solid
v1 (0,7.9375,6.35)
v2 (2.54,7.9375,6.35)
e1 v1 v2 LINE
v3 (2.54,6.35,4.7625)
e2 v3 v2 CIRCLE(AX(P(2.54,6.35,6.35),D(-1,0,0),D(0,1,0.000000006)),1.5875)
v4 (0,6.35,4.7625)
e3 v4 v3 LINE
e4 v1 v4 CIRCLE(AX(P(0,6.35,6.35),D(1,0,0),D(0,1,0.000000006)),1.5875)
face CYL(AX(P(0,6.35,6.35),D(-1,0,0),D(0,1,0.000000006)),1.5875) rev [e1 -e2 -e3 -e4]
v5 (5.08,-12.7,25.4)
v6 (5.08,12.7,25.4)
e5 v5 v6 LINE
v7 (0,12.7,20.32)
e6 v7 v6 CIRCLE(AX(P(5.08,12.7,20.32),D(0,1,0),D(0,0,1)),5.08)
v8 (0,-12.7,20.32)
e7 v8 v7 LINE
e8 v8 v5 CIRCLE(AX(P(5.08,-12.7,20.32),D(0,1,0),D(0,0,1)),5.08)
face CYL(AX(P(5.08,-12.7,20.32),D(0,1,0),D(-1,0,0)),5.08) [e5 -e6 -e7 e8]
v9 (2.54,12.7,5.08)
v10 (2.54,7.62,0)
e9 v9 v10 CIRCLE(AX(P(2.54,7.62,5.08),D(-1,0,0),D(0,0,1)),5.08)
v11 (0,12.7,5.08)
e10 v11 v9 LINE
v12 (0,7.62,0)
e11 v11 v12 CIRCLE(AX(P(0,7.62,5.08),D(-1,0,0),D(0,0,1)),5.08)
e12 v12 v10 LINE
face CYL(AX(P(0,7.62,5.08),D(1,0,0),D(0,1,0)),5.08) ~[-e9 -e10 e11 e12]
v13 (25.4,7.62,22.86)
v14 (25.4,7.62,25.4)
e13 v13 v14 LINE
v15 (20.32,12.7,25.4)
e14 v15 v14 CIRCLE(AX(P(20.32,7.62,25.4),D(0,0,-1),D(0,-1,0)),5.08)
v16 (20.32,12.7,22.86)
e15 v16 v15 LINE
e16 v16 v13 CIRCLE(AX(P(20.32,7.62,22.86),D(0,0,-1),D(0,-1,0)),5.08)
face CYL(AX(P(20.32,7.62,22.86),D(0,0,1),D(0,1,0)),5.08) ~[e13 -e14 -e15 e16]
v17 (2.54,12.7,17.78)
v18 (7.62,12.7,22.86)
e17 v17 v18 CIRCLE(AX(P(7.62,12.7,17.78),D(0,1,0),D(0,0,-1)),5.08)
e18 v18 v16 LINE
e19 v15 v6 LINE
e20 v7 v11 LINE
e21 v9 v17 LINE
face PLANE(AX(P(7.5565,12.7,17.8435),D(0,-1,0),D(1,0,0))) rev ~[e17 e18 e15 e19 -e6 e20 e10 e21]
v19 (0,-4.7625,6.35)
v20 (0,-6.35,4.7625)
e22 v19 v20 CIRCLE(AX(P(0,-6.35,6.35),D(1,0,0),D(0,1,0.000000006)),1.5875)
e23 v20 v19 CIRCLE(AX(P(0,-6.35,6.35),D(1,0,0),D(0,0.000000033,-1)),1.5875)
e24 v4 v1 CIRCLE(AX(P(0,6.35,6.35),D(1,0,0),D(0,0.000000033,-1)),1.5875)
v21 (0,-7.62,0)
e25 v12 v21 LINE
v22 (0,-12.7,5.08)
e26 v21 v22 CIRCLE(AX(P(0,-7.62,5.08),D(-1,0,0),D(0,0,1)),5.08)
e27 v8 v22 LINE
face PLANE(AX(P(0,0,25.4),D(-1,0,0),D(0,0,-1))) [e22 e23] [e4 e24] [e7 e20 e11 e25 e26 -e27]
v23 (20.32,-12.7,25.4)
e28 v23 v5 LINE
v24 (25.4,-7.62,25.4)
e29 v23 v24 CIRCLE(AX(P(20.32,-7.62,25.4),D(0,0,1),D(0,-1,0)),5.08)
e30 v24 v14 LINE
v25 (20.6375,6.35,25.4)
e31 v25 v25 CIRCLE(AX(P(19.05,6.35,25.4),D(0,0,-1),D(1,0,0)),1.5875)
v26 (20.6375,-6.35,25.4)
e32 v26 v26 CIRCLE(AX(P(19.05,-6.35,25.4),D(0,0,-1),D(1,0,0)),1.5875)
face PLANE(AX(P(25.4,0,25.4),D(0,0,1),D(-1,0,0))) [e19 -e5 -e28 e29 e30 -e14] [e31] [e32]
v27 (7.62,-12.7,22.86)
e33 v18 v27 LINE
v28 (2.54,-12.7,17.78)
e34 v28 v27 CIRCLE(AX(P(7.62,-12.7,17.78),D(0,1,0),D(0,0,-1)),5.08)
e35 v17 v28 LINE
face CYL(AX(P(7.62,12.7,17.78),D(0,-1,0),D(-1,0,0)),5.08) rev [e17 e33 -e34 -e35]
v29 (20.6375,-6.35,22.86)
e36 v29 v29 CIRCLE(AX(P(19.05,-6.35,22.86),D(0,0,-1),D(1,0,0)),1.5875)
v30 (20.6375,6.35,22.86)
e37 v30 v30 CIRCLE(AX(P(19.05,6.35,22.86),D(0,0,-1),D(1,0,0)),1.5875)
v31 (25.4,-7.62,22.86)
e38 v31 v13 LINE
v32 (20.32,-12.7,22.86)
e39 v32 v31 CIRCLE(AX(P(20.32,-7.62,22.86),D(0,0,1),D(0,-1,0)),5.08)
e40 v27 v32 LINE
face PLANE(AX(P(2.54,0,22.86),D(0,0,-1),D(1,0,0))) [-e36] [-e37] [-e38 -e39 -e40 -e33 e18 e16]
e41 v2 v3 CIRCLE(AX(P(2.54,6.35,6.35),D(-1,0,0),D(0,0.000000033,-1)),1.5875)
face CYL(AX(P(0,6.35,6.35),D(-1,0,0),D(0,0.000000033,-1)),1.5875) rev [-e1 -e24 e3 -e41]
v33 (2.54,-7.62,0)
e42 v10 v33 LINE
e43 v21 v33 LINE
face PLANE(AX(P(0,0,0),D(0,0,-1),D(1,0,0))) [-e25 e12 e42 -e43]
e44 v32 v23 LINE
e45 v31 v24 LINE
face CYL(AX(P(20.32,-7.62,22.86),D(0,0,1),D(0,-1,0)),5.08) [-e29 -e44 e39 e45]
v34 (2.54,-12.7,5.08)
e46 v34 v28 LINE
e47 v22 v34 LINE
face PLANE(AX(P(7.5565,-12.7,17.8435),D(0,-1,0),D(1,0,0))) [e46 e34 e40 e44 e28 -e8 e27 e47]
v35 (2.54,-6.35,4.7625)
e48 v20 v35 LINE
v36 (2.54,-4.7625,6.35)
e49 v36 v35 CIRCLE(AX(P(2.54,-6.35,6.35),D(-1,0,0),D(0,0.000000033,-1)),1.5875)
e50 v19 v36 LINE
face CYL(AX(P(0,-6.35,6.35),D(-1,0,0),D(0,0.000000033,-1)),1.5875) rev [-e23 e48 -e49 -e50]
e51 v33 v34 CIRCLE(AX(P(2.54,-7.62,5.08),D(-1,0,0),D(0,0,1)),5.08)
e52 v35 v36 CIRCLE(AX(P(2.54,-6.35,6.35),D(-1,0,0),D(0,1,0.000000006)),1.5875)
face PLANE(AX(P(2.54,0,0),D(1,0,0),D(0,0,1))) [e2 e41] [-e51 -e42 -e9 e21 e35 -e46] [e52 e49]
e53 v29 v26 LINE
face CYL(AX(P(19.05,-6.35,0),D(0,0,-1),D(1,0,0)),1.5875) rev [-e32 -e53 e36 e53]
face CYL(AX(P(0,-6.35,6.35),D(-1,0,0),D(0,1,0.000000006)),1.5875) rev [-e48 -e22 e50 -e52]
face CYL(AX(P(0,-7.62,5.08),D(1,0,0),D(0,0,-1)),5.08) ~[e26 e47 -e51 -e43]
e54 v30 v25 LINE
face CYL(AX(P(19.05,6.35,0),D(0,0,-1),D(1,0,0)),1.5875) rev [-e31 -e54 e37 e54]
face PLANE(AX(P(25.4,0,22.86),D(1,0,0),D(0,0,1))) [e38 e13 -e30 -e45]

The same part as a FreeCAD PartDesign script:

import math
import FreeCAD as App
import Part
import Sketcher

V = App.Vector
Q = App.Units.Quantity


def edges_at(feature, points):
    """Names of the edges that pass closest to the given points."""
    edges = feature.Shape.Edges
    near = lambda p: min(range(len(edges)), key=lambda i: edges[i].distToShape(Part.Vertex(*p))[0])
    return sorted({f"Edge{near(p) + 1}" for p in points})


def add_polygon(sketch, points):
    """Adds a closed chain of lines whose ends are joined by coincident constraints."""
    first, n = sketch.GeometryCount, len(points)
    for a, b in zip(points, points[1:] + points[:1]):
        sketch.addGeometry(Part.LineSegment(App.Vector(*a, 0), App.Vector(*b, 0)), False)
    for i in range(n):
        sketch.addConstraint(Sketcher.Constraint("Coincident", first + i, 2, first + (i + 1) % n, 1))

doc = App.newDocument("Part")
body = doc.addObject("PartDesign::Body", "Body")

sketch1 = body.newObject("Sketcher::SketchObject", "Sketch")
sketch1.AttachmentSupport = (doc.getObject("XZ_Plane"), [""])
sketch1.MapMode = "FlatFace"
add_polygon(sketch1, [(0, 25.4), (0, 0), (2.5, 0), (2.5, 22.9), (25.4, 22.9), (25.4, 25.4)])
sketch1.addConstraint([
    Sketcher.Constraint("Vertical", 0),
    Sketcher.Constraint("Horizontal", 1),
    Sketcher.Constraint("Vertical", 2),
    Sketcher.Constraint("Horizontal", 3),
    Sketcher.Constraint("Vertical", 4),
    Sketcher.Constraint("Horizontal", 5),
    Sketcher.Constraint("Coincident", 0, 2, -1, 1),
    Sketcher.Constraint("Equal", 5, 0),
    Sketcher.Constraint("Equal", 3, 2),
    Sketcher.Constraint("DistanceX", 5, 2, 5, 1, Q("1 in")),
    Sketcher.Constraint("DistanceX", 1, 1, 1, 2, Q("0.1 in")),
])
pad1 = body.newObject("PartDesign::Pad", "Pad")
pad1.Profile = sketch1
pad1.Length = Q("1 in")
pad1.Midplane = True

sketch2 = body.newObject("Sketcher::SketchObject", "Sketch001")
sketch2.AttachmentSupport = (doc.getObject("XY_Plane"), [""])
sketch2.MapMode = "FlatFace"
sketch2.addGeometry([
    Part.Circle(V(19.1, 6.3, 0), V(0, 0, 1), 1.6),
    Part.Circle(V(19.1, -6.3, 0), V(0, 0, 1), 1.6),
], False)
sketch2.addConstraint([
    Sketcher.Constraint("Equal", 0, 1),
    Sketcher.Constraint("Symmetric", 0, 3, 1, 3, -1),
    Sketcher.Constraint("Diameter", 0, Q("0.125 in")),
    Sketcher.Constraint("DistanceY", 1, 3, 0, 3, Q("0.5 in")),
    Sketcher.Constraint("DistanceX", -1, 1, 0, 3, Q("0.75 in")),
])
pocket1 = body.newObject("PartDesign::Pocket", "Pocket")
pocket1.Profile = sketch2
pocket1.Length = Q("1.55 in")
pocket1.Reversed = True

sketch3 = body.newObject("Sketcher::SketchObject", "Sketch002")
sketch3.AttachmentSupport = (doc.getObject("YZ_Plane"), [""])
sketch3.MapMode = "FlatFace"
sketch3.addGeometry([
    Part.ArcOfCircle(Part.Circle(V(6.4, 6.3, 0), V(0, 0, 1), 1.6), math.radians(0), math.radians(270)),
    Part.ArcOfCircle(Part.Circle(V(6.3, 6.4, 0), V(0, 0, 1), 1.6), math.radians(-90), math.radians(0)),
    Part.ArcOfCircle(Part.Circle(V(-6.3, 6.3, 0), V(0, 0, 1), 1.6), math.radians(0), math.radians(270)),
    Part.ArcOfCircle(Part.Circle(V(-6.4, 6.4, 0), V(0, 0, 1), 1.6), math.radians(-90), math.radians(0)),
], False)
sketch3.addConstraint([
    Sketcher.Constraint("Tangent", 0, 1, 1, 2),
    Sketcher.Constraint("Coincident", 1, 1, 0, 2),
    Sketcher.Constraint("Tangent", 2, 1, 3, 2),
    Sketcher.Constraint("Coincident", 3, 1, 2, 2),
    Sketcher.Constraint("Equal", 1, 2),
    Sketcher.Constraint("Symmetric", 0, 3, 2, 3, -2),
    Sketcher.Constraint("Horizontal", 3, 3, 0, 1),
    Sketcher.Constraint("Horizontal", 0, 1, 2, 1),
    Sketcher.Constraint("Vertical", 0, 3, 1, 1),
    Sketcher.Constraint("Vertical", 2, 3, 3, 1),
    Sketcher.Constraint("Radius", 0, Q("0.0625 in")),
    Sketcher.Constraint("DistanceX", 2, 3, 1, 3, Q("0.5 in")),
    Sketcher.Constraint("DistanceY", -1, 1, 0, 3, Q("0.25 in")),
])
pocket2 = body.newObject("PartDesign::Pocket", "Pocket001")
pocket2.Profile = sketch3
pocket2.Length = Q("0.33 in")
pocket2.Reversed = True
doc.recompute()

fillet = body.newObject("PartDesign::Fillet", "Fillet")
fillet.Base = (pocket2, edges_at(pocket2, [
    (25.4, -12.7, 24.13),
    (25.4, 12.7, 24.13),
    (1.27, -12.7, 0),
    (1.27, 12.7, 0),
]))
fillet.Radius = Q("0.2 in")
doc.recompute()

fillet2 = body.newObject("PartDesign::Fillet", "Fillet001")
fillet2.Base = (fillet, edges_at(fillet, [(0, 0, 25.4)]))
fillet2.Radius = Q("0.2 in")
doc.recompute()

fillet3 = body.newObject("PartDesign::Fillet", "Fillet002")
fillet3.Base = (fillet2, edges_at(fillet2, [(2.54, 0, 22.86)]))
fillet3.Radius = Q("0.2 in")

doc.recompute()
